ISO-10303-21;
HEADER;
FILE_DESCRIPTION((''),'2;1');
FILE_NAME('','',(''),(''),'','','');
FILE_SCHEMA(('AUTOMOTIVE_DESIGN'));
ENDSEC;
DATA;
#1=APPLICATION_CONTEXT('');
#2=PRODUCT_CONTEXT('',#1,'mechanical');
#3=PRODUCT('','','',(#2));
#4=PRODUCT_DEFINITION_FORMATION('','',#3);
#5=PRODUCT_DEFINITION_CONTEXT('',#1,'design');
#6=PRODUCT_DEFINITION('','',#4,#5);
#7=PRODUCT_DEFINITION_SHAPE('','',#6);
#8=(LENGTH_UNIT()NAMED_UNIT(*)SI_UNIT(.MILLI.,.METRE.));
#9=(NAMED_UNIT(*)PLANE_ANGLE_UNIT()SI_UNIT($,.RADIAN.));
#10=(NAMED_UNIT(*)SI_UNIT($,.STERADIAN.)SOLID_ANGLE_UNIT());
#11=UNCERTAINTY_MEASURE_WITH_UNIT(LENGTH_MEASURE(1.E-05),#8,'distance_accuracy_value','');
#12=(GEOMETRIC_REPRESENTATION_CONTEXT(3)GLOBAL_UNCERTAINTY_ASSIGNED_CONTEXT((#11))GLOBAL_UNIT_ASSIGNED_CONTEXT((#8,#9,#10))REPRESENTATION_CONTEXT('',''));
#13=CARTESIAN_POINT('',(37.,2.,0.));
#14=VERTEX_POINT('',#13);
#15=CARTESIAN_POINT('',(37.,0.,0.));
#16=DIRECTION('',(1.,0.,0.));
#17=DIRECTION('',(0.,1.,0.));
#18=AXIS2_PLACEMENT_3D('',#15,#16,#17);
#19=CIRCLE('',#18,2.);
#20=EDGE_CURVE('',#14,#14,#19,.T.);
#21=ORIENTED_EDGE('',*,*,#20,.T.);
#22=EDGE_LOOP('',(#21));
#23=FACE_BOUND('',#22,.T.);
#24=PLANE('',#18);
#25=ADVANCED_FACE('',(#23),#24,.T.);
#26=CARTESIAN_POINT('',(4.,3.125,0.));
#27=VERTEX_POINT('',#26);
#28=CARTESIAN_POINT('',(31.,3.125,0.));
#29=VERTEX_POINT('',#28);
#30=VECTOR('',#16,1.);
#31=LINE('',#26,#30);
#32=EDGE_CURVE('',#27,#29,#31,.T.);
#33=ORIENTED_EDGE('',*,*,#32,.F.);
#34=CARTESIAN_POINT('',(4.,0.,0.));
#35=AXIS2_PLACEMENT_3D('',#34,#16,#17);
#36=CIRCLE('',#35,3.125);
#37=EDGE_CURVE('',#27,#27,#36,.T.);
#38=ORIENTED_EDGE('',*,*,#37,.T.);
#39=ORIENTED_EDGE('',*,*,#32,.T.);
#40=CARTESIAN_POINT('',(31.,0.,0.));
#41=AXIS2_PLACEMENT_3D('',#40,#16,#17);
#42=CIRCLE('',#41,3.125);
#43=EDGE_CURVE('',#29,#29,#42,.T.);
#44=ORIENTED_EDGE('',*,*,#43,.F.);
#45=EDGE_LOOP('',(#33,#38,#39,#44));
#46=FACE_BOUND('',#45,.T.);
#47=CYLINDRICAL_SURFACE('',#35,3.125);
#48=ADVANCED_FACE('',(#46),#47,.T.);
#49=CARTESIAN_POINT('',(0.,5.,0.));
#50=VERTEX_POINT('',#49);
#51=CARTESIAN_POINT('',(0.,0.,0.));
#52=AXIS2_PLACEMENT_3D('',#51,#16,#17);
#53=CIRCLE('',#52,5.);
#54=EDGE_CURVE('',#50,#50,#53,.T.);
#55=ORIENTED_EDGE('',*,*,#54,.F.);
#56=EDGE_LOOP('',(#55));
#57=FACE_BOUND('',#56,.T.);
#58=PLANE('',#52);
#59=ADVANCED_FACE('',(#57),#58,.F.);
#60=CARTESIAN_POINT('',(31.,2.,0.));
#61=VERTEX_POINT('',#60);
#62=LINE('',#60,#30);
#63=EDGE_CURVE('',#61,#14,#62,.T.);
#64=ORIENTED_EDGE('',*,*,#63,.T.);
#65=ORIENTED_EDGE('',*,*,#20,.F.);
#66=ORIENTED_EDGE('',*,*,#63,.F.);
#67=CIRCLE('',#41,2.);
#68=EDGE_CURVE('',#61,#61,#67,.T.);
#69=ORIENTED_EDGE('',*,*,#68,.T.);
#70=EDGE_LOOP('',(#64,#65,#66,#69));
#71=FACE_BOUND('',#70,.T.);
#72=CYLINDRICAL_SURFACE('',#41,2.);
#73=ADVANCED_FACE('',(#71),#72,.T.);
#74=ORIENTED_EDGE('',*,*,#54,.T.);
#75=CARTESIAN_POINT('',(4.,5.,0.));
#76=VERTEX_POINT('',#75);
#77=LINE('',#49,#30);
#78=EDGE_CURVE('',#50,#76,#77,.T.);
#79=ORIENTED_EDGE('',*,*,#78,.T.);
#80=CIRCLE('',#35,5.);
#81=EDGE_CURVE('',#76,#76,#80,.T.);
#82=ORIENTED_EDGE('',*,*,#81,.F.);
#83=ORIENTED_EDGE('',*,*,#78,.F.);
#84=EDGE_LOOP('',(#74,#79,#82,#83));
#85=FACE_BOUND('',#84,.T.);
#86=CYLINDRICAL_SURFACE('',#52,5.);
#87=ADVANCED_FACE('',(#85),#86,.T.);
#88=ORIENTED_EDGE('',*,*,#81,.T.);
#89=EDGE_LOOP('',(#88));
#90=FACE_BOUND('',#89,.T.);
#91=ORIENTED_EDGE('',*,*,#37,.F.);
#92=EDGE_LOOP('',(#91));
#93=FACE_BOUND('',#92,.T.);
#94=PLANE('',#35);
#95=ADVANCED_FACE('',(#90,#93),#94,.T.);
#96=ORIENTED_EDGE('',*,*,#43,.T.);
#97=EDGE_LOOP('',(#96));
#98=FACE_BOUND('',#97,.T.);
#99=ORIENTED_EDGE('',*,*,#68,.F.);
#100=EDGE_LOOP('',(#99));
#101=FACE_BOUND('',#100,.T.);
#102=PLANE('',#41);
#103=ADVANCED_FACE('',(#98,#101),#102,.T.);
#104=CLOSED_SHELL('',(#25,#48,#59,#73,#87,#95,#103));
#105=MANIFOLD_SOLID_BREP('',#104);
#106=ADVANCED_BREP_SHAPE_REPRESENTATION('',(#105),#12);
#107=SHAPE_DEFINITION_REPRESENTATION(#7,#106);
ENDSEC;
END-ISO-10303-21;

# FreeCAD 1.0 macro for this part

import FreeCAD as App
import Part
import Sketcher

doc = App.newDocument("Part")
params = doc.addObject("Spreadsheet::Sheet", "Params")
for row, (alias, value) in enumerate([
    ("sketch1_width", "37 mm"),
    ("sketch1_width2", "6 mm"),
    ("sketch1_width3", "27 mm"),
    ("sketch1_height", "5 mm"),
    ("sketch1_height2", "2 mm"),
    ("revolution_angle", "360 deg"),
], start=1):
    params.set(f"A{row}", alias)
    params.set(f"B{row}", "=" + value)
    params.setAlias(f"B{row}", alias)

body = doc.addObject("PartDesign::Body", "Body")

# Sketch on XY plane
sketch1 = body.newObject("Sketcher::SketchObject", "Sketch")
sketch1.AttachmentSupport = (doc.getObject("XY_Plane"), [""])
sketch1.MapMode = "FlatFace"
sketch1.addGeometry(Part.LineSegment(App.Vector(0, 5, 0), App.Vector(0, 0, 0)), False)
sketch1.addGeometry(Part.LineSegment(App.Vector(0, 0, 0), App.Vector(37, 0, 0)), False)
sketch1.addGeometry(Part.LineSegment(App.Vector(37, 0, 0), App.Vector(37, 2, 0)), False)
sketch1.addGeometry(Part.LineSegment(App.Vector(37, 2, 0), App.Vector(31, 2, 0)), False)
sketch1.addGeometry(Part.LineSegment(App.Vector(31, 2, 0), App.Vector(31, 3.1, 0)), False)
sketch1.addGeometry(Part.LineSegment(App.Vector(31, 3.1, 0), App.Vector(4, 3.1, 0)), False)
sketch1.addGeometry(Part.LineSegment(App.Vector(4, 3.1, 0), App.Vector(4, 5, 0)), False)
sketch1.addGeometry(Part.LineSegment(App.Vector(4, 5, 0), App.Vector(0, 5, 0)), False)
sketch1.addConstraint(Sketcher.Constraint("Coincident", 0, 2, 1, 1))
sketch1.addConstraint(Sketcher.Constraint("Coincident", 1, 2, 2, 1))
sketch1.addConstraint(Sketcher.Constraint("Coincident", 2, 2, 3, 1))
sketch1.addConstraint(Sketcher.Constraint("Coincident", 3, 2, 4, 1))
sketch1.addConstraint(Sketcher.Constraint("Coincident", 4, 2, 5, 1))
sketch1.addConstraint(Sketcher.Constraint("Coincident", 5, 2, 6, 1))
sketch1.addConstraint(Sketcher.Constraint("Coincident", 6, 2, 7, 1))
sketch1.addConstraint(Sketcher.Constraint("Coincident", 7, 2, 0, 1))
sketch1.addConstraint(Sketcher.Constraint("Vertical", 0))
sketch1.addConstraint(Sketcher.Constraint("Horizontal", 1))
sketch1.addConstraint(Sketcher.Constraint("Vertical", 2))
sketch1.addConstraint(Sketcher.Constraint("Horizontal", 3))
sketch1.addConstraint(Sketcher.Constraint("Vertical", 4))
sketch1.addConstraint(Sketcher.Constraint("Horizontal", 5))
sketch1.addConstraint(Sketcher.Constraint("Vertical", 6))
sketch1.addConstraint(Sketcher.Constraint("Horizontal", 7))
sketch1.addConstraint(Sketcher.Constraint("Coincident", 0, 2, -1, 1))
sketch1.addConstraint(Sketcher.Constraint("DistanceX", 1, 1, 1, 2, 37.0))
sketch1.addConstraint(Sketcher.Constraint("DistanceX", 3, 2, 3, 1, 6.0))
sketch1.addConstraint(Sketcher.Constraint("DistanceX", 5, 2, 5, 1, 27.0))
sketch1.addConstraint(Sketcher.Constraint("DistanceY", 0, 2, 0, 1, 5.0))
sketch1.addConstraint(Sketcher.Constraint("DistanceY", 2, 1, 2, 2, 2.0))
sketch1.addConstraint(Sketcher.Constraint("DistanceY", 4, 1, 4, 2, 1.125))
sketch1.setExpression("Constraints[17]", "Params.sketch1_width")
sketch1.setExpression("Constraints[18]", "Params.sketch1_width2")
sketch1.setExpression("Constraints[19]", "Params.sketch1_width3")
sketch1.setExpression("Constraints[20]", "Params.sketch1_height")
sketch1.setExpression("Constraints[21]", "Params.sketch1_height2")
revolution = body.newObject("PartDesign::Revolution", "Revolution")
revolution.Profile = sketch1
revolution.ReferenceAxis = (sketch1, ["H_Axis"])
revolution.setExpression("Angle", "Params.revolution_angle")

doc.recompute()
